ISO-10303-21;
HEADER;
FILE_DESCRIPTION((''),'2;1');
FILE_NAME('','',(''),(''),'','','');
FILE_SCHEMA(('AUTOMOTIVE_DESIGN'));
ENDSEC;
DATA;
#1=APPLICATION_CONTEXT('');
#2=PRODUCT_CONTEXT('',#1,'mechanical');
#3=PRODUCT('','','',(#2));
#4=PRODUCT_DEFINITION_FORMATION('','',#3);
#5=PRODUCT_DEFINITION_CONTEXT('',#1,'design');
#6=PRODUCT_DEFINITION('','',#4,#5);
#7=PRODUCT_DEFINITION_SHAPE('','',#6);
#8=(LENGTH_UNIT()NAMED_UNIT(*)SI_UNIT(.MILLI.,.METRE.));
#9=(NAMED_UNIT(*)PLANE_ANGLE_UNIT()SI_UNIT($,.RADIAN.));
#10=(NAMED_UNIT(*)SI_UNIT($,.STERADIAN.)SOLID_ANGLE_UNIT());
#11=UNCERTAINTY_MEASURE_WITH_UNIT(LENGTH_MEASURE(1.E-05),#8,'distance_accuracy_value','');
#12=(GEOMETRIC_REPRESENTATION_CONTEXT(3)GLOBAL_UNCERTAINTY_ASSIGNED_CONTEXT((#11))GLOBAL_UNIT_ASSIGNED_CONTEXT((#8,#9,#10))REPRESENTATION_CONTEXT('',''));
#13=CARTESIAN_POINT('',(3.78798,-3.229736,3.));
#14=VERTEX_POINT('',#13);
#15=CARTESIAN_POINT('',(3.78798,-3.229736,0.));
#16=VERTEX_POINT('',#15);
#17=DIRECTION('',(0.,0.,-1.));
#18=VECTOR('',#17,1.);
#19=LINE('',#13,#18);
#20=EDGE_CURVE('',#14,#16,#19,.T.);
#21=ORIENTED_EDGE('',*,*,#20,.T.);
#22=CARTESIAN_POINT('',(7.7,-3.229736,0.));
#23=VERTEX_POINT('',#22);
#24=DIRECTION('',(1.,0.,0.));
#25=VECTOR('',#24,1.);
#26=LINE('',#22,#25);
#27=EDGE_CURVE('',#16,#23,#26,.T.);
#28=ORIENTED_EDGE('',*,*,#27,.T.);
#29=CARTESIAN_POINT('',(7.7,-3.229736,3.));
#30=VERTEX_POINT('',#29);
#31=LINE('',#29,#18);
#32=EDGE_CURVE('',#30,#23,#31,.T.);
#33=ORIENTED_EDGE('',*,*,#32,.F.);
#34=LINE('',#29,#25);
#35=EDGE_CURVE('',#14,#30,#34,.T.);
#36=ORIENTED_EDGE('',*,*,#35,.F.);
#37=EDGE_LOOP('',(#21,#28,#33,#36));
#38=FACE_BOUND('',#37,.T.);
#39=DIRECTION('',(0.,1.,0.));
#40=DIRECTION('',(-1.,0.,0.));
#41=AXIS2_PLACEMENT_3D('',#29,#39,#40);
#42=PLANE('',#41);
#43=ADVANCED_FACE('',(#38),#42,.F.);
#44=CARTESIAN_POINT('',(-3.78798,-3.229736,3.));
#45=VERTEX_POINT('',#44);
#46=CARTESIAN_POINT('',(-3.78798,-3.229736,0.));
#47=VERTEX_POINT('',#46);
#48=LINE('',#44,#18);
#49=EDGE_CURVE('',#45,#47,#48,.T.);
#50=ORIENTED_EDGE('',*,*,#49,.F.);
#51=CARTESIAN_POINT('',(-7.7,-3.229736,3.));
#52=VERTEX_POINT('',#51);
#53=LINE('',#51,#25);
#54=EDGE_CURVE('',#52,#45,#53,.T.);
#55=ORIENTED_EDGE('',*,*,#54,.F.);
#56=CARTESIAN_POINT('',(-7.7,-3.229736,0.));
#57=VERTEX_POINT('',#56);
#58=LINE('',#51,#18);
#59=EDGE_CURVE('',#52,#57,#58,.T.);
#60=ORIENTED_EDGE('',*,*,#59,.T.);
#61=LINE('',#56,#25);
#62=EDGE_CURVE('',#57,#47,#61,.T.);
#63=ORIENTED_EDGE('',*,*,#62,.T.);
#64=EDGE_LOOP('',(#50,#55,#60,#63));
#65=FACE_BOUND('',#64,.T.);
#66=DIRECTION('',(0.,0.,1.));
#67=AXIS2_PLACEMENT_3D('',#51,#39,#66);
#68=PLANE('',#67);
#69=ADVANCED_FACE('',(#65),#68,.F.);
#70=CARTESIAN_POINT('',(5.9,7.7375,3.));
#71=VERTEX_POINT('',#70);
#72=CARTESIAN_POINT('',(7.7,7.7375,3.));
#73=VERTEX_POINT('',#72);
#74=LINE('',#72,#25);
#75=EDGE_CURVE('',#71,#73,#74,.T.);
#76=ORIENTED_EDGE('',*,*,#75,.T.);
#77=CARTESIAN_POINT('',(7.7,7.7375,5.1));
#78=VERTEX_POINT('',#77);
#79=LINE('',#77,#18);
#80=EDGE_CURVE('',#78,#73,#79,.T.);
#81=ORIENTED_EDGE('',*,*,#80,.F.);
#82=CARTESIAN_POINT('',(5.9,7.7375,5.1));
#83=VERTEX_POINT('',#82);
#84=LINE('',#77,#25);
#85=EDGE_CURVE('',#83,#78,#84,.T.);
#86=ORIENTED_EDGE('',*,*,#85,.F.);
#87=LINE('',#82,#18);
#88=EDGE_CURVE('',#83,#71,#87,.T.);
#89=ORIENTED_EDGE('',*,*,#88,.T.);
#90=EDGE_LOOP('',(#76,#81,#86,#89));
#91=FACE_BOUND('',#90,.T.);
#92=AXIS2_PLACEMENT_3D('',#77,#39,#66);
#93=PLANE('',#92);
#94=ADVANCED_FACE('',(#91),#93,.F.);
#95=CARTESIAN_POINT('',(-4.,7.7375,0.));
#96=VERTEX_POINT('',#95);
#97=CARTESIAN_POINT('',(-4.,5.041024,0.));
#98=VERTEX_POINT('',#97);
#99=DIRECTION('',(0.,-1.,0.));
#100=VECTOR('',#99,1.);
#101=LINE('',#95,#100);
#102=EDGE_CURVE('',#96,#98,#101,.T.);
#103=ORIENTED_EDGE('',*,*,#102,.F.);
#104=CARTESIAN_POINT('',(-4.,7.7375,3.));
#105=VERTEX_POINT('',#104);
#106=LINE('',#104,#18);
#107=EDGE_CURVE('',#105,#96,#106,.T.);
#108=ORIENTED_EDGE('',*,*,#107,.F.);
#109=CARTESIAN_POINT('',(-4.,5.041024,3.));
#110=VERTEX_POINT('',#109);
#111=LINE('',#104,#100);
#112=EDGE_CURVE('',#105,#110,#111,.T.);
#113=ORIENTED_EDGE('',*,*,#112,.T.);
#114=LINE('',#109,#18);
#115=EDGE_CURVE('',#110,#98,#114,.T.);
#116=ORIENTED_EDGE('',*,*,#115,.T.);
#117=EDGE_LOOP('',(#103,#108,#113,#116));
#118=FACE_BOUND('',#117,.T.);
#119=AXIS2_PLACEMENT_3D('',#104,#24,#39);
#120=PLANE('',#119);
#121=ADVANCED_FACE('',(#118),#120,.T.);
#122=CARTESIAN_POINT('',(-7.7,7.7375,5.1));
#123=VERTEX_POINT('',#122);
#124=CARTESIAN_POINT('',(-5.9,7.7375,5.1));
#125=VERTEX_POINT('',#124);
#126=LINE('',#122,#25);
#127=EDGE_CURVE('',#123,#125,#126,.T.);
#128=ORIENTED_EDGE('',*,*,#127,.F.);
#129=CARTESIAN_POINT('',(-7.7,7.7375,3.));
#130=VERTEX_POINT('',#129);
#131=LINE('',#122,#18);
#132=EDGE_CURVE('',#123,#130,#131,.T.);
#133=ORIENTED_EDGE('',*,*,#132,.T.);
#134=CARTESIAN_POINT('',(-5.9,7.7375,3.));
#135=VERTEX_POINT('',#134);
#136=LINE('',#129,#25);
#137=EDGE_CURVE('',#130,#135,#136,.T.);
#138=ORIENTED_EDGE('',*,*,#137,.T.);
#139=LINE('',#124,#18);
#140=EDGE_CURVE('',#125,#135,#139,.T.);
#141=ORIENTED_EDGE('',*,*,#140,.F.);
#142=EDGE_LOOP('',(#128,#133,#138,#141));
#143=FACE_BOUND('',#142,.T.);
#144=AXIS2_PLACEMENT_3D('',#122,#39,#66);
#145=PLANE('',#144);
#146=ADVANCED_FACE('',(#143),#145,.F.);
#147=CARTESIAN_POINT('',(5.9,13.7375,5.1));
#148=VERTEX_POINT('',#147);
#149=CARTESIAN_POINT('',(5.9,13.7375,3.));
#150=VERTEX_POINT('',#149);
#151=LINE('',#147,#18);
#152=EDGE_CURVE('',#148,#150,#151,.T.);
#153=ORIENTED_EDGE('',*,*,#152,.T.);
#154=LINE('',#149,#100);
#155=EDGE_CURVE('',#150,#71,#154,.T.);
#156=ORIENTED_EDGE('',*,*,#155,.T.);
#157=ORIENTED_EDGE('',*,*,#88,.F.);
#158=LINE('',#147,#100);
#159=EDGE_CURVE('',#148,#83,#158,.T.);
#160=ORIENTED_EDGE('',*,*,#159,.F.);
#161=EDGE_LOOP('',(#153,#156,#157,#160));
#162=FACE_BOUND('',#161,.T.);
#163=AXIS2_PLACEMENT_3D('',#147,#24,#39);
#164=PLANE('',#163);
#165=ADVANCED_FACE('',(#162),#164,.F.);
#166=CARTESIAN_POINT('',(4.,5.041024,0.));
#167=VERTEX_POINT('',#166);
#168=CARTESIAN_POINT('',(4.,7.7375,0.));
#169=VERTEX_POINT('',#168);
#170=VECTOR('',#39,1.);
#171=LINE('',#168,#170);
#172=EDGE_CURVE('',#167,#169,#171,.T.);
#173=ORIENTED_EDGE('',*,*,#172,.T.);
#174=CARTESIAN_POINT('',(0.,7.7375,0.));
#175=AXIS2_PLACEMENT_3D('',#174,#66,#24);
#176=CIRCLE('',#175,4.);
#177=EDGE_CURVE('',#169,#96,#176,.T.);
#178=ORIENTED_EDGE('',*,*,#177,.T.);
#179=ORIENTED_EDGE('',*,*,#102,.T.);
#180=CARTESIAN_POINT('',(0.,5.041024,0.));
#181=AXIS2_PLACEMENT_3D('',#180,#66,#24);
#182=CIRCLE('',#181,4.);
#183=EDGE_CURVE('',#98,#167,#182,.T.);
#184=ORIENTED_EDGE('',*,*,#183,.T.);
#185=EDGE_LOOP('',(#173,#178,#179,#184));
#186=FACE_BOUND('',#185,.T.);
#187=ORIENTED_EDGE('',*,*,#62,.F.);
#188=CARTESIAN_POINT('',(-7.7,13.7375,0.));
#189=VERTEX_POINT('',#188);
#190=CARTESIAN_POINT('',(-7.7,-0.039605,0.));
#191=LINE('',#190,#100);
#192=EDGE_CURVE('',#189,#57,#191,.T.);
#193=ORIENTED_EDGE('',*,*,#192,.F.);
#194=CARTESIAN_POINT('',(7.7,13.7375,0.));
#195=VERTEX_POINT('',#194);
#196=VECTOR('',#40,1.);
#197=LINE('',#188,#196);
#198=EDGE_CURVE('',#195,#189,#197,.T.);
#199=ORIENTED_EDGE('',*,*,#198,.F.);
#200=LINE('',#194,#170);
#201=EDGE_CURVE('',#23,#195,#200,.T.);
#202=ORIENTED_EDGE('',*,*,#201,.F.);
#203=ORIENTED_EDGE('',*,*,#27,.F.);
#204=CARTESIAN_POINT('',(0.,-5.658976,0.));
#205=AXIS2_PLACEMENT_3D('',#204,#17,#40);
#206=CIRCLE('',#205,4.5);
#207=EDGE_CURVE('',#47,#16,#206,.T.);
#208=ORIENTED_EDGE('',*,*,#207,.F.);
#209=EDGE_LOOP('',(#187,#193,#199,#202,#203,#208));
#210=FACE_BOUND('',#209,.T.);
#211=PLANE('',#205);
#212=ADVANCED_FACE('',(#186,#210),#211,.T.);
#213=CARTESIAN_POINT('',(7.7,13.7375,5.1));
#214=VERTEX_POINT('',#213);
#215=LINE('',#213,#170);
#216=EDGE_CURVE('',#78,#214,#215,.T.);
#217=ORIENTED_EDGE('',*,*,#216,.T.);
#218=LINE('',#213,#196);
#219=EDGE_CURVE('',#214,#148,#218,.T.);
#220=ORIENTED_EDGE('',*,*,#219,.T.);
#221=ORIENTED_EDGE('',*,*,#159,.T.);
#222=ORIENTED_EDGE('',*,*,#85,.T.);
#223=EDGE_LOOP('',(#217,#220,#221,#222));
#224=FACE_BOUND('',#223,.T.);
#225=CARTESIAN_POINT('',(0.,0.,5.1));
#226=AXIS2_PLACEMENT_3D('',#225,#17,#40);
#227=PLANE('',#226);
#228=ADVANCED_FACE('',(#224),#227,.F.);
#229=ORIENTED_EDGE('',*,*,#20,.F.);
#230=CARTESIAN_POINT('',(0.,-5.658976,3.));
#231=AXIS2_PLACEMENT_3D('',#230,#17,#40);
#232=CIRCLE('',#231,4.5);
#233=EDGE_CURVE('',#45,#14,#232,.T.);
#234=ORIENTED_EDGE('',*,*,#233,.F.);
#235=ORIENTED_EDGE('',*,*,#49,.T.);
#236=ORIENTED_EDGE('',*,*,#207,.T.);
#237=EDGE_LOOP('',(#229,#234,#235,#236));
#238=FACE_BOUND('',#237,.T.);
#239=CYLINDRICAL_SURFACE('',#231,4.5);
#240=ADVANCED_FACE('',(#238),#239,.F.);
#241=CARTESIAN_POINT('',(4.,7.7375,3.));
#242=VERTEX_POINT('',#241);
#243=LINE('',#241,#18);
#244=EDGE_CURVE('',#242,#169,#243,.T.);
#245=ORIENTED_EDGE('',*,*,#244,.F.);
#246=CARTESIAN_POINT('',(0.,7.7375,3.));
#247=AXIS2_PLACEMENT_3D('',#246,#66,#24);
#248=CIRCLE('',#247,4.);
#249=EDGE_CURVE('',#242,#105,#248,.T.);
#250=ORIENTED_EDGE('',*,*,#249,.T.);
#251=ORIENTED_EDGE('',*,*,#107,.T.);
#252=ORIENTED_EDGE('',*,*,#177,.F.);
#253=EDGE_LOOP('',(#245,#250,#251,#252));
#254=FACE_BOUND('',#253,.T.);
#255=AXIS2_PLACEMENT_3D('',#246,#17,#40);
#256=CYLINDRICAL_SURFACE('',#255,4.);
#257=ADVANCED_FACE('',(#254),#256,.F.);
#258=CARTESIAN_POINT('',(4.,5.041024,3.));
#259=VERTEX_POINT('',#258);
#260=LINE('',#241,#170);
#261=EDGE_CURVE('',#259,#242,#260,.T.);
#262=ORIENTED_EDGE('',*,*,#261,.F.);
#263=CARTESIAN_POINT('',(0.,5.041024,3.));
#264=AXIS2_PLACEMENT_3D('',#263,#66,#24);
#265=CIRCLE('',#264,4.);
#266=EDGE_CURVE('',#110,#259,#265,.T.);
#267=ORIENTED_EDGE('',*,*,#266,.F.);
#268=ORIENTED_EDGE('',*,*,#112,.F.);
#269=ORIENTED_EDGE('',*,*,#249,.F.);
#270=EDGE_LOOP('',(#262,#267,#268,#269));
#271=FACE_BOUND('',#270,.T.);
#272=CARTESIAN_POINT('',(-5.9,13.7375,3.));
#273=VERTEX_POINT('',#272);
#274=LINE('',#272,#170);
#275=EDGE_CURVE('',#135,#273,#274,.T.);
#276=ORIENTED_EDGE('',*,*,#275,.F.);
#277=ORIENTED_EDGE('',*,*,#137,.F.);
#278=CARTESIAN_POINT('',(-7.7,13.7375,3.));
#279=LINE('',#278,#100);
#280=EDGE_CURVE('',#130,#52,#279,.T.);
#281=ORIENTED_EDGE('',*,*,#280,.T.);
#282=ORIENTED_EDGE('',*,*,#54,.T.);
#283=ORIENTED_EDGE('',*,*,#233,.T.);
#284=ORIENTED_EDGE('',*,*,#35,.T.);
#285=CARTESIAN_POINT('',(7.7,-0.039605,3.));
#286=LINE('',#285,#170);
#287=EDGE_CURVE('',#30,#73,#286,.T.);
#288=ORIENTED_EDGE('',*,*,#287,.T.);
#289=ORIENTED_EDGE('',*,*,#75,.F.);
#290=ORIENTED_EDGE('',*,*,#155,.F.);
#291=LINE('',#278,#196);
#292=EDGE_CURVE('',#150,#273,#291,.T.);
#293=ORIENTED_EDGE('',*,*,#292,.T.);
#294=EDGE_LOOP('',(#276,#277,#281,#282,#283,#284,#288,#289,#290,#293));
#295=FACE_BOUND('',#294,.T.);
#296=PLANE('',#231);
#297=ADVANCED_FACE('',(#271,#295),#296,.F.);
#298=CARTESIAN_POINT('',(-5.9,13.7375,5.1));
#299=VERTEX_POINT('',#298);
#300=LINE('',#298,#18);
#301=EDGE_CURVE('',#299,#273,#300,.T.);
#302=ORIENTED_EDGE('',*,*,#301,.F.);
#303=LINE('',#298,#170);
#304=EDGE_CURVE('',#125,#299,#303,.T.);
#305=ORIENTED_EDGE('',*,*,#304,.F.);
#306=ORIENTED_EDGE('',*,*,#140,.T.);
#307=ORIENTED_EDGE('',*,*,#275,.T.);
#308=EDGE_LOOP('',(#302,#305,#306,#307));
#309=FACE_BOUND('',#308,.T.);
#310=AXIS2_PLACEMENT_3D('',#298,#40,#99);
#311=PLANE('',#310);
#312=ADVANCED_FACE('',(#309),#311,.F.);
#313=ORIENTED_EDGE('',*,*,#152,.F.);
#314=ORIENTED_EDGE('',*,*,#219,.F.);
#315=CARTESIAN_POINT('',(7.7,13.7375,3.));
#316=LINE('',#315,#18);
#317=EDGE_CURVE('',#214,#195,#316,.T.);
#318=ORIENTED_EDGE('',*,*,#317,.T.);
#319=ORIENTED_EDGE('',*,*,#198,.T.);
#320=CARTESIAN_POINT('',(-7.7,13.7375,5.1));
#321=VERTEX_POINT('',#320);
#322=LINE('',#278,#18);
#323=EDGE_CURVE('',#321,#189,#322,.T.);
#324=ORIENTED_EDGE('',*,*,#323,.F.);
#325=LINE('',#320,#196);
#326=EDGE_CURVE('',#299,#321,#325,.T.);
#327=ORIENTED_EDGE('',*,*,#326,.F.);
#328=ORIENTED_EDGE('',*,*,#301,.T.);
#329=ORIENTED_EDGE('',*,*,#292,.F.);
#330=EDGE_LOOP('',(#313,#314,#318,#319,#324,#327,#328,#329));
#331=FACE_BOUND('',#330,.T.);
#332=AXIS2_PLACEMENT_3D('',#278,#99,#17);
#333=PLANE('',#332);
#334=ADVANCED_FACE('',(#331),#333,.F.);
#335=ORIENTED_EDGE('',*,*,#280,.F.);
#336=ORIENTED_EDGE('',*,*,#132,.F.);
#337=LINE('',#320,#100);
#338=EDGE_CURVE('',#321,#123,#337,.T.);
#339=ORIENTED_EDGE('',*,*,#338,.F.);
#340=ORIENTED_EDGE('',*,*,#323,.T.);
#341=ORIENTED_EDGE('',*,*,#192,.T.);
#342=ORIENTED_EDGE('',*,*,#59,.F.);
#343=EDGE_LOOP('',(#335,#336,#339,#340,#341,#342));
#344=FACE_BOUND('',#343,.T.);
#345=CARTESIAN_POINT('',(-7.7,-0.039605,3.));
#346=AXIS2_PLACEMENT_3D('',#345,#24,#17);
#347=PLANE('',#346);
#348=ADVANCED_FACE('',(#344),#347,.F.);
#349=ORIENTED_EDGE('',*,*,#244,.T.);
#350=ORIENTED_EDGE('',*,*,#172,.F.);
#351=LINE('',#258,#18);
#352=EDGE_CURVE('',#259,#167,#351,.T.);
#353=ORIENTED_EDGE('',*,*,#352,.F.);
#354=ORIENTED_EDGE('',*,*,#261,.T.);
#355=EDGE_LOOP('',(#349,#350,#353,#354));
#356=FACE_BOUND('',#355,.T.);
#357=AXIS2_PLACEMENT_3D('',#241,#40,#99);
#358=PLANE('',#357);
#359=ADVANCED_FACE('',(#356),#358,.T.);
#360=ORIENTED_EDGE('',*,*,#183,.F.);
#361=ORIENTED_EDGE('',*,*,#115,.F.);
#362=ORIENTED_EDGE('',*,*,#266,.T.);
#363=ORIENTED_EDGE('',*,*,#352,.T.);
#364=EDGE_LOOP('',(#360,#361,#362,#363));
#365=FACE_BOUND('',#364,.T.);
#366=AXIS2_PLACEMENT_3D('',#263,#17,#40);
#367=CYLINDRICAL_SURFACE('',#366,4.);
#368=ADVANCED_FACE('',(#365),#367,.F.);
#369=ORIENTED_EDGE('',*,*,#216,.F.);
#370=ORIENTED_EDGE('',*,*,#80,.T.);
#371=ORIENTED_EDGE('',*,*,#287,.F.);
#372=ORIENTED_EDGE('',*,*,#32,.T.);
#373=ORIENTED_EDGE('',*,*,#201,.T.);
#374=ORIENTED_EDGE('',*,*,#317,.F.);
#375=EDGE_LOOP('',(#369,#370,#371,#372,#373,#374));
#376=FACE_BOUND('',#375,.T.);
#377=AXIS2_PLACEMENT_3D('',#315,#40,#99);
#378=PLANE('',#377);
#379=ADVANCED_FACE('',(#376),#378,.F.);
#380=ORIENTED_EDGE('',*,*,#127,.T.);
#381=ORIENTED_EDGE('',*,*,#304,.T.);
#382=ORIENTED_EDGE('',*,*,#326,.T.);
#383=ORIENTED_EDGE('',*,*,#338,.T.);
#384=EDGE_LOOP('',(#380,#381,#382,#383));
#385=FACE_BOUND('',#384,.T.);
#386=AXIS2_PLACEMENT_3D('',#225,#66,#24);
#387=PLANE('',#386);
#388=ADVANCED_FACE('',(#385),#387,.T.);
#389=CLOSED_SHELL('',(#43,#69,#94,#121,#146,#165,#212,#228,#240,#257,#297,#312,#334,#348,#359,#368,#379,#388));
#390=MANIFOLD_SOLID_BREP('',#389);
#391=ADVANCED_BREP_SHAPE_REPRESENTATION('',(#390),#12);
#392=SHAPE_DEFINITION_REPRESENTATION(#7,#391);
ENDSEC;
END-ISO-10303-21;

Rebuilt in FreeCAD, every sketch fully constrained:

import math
import FreeCAD as App
import Part
import Sketcher

doc = App.newDocument("Part")
params = doc.addObject("Spreadsheet::Sheet", "Params")
for row, (alias, value) in enumerate([
    ("sketch1_radius", "4 mm"),
    ("sketch1_radius2", "4.5 mm"),
    ("sketch1_width", "15.4 mm"),
    ("pad1_length", "3 mm"),
    ("sketch2_height", "6 mm"),
    ("sketch2_width", "1.8 mm"),
    ("pad2_length", "2.1 mm"),
], start=1):
    params.set(f"A{row}", alias)
    params.set(f"B{row}", "=" + value)
    params.setAlias(f"B{row}", alias)

body = doc.addObject("PartDesign::Body", "Body")

sketch1 = doc.addObject("Sketcher::SketchObject", "Sketch")
body.addObject(sketch1)
sketch1.AttachmentSupport = (doc.XY_Plane, [""])
sketch1.MapMode = "FlatFace"
sketch1.addGeometry(Part.LineSegment(App.Vector(7.7, 13.7375, 0), App.Vector(-7.7, 13.7375, 0)), False)
sketch1.addGeometry(Part.LineSegment(App.Vector(-7.7, 13.7375, 0), App.Vector(-7.7, -3.229736, 0)), False)
sketch1.addGeometry(Part.LineSegment(App.Vector(-7.7, -3.229736, 0), App.Vector(-3.78798, -3.229736, 0)), False)
sketch1.addGeometry(Part.ArcOfCircle(Part.Circle(App.Vector(0, -5.658976, 0), App.Vector(0, 0, 1), 4.5), math.radians(32.672153), math.radians(147.327847)), False)
sketch1.addGeometry(Part.LineSegment(App.Vector(3.78798, -3.229736, 0), App.Vector(7.7, -3.229736, 0)), False)
sketch1.addGeometry(Part.LineSegment(App.Vector(7.7, -3.229736, 0), App.Vector(7.7, 13.7375, 0)), False)
sketch1.addGeometry(Part.LineSegment(App.Vector(4, 7.7375, 0), App.Vector(4, 5.041024, 0)), False)
sketch1.addGeometry(Part.ArcOfCircle(Part.Circle(App.Vector(0, 5.041024, 0), App.Vector(0, 0, 1), 4), math.radians(180), math.radians(360)), False)
sketch1.addGeometry(Part.LineSegment(App.Vector(-4, 5.041024, 0), App.Vector(-4, 7.7375, 0)), False)
sketch1.addGeometry(Part.ArcOfCircle(Part.Circle(App.Vector(0, 7.7375, 0), App.Vector(0, 0, 1), 4), math.radians(0), math.radians(180)), False)
sketch1.addConstraint(Sketcher.Constraint("Coincident", 0, 2, 1, 1))
sketch1.addConstraint(Sketcher.Constraint("Coincident", 1, 2, 2, 1))
sketch1.addConstraint(Sketcher.Constraint("Coincident", 2, 2, 3, 2))
sketch1.addConstraint(Sketcher.Constraint("Coincident", 3, 1, 4, 1))
sketch1.addConstraint(Sketcher.Constraint("Coincident", 4, 2, 5, 1))
sketch1.addConstraint(Sketcher.Constraint("Coincident", 5, 2, 0, 1))
sketch1.addConstraint(Sketcher.Constraint("Tangent", 6, 2, 7, 2))
sketch1.addConstraint(Sketcher.Constraint("Tangent", 7, 1, 8, 1))
sketch1.addConstraint(Sketcher.Constraint("Tangent", 8, 2, 9, 2))
sketch1.addConstraint(Sketcher.Constraint("Tangent", 9, 1, 6, 1))
sketch1.addConstraint(Sketcher.Constraint("Horizontal", 0))
sketch1.addConstraint(Sketcher.Constraint("Vertical", 1))
sketch1.addConstraint(Sketcher.Constraint("Horizontal", 2))
sketch1.addConstraint(Sketcher.Constraint("Horizontal", 4))
sketch1.addConstraint(Sketcher.Constraint("Vertical", 5))
sketch1.addConstraint(Sketcher.Constraint("Vertical", 6))
sketch1.addConstraint(Sketcher.Constraint("Vertical", 8))
sketch1.addConstraint(Sketcher.Constraint("Symmetric", 2, 2, 3, 1, -2))
sketch1.addConstraint(Sketcher.Constraint("PointOnObject", 7, 3, -2))
sketch1.addConstraint(Sketcher.Constraint("Equal", 2, 4))
sketch1.addConstraint(Sketcher.Constraint("Radius", 7, 4.0))
sketch1.addConstraint(Sketcher.Constraint("Radius", 3, 4.5))
sketch1.addConstraint(Sketcher.Constraint("DistanceX", 0, 2, 0, 1, 15.4))
sketch1.addConstraint(Sketcher.Constraint("DistanceY", 9, 3, 0, 2, 6.0))
sketch1.addConstraint(Sketcher.Constraint("DistanceY", 3, 3, 7, 3, 10.7))
sketch1.addConstraint(Sketcher.Constraint("DistanceX", 2, 1, 2, 2, 3.91202))
sketch1.addConstraint(Sketcher.Constraint("DistanceY", -1, 1, 9, 3, 7.7375))
sketch1.addConstraint(Sketcher.Constraint("DistanceY", 1, 2, 1, 1, 16.967235))
sketch1.setExpression("Constraints[20]", "Params.sketch1_radius")
sketch1.setExpression("Constraints[21]", "Params.sketch1_radius2")
sketch1.setExpression("Constraints[22]", "Params.sketch1_width")
pad1 = doc.addObject("PartDesign::Pad", "Pad")
body.addObject(pad1)
pad1.Profile = sketch1
pad1.setExpression("Length", "Params.pad1_length")

sketch2 = doc.addObject("Sketcher::SketchObject", "Sketch001")
body.addObject(sketch2)
sketch2.AttachmentSupport = (doc.XY_Plane, [""])
sketch2.MapMode = "FlatFace"
sketch2.AttachmentOffset = App.Placement(App.Vector(0, 0, 3), App.Rotation())
sketch2.addGeometry(Part.LineSegment(App.Vector(-7.7, 13.7375, 0), App.Vector(-7.7, 7.7375, 0)), False)
sketch2.addGeometry(Part.LineSegment(App.Vector(-7.7, 7.7375, 0), App.Vector(-5.9, 7.7375, 0)), False)
sketch2.addGeometry(Part.LineSegment(App.Vector(-5.9, 7.7375, 0), App.Vector(-5.9, 13.7375, 0)), False)
sketch2.addGeometry(Part.LineSegment(App.Vector(-5.9, 13.7375, 0), App.Vector(-7.7, 13.7375, 0)), False)
sketch2.addGeometry(Part.LineSegment(App.Vector(5.9, 13.7375, 0), App.Vector(5.9, 7.7375, 0)), False)
sketch2.addGeometry(Part.LineSegment(App.Vector(5.9, 7.7375, 0), App.Vector(7.7, 7.7375, 0)), False)
sketch2.addGeometry(Part.LineSegment(App.Vector(7.7, 7.7375, 0), App.Vector(7.7, 13.7375, 0)), False)
sketch2.addGeometry(Part.LineSegment(App.Vector(7.7, 13.7375, 0), App.Vector(5.9, 13.7375, 0)), False)
sketch2.addConstraint(Sketcher.Constraint("Coincident", 0, 2, 1, 1))
sketch2.addConstraint(Sketcher.Constraint("Coincident", 1, 2, 2, 1))
sketch2.addConstraint(Sketcher.Constraint("Coincident", 2, 2, 3, 1))
sketch2.addConstraint(Sketcher.Constraint("Coincident", 3, 2, 0, 1))
sketch2.addConstraint(Sketcher.Constraint("Coincident", 4, 2, 5, 1))
sketch2.addConstraint(Sketcher.Constraint("Coincident", 5, 2, 6, 1))
sketch2.addConstraint(Sketcher.Constraint("Coincident", 6, 2, 7, 1))
sketch2.addConstraint(Sketcher.Constraint("Coincident", 7, 2, 4, 1))
sketch2.addConstraint(Sketcher.Constraint("Vertical", 0))
sketch2.addConstraint(Sketcher.Constraint("Horizontal", 1))
sketch2.addConstraint(Sketcher.Constraint("Vertical", 2))
sketch2.addConstraint(Sketcher.Constraint("Horizontal", 3))
sketch2.addConstraint(Sketcher.Constraint("Vertical", 4))
sketch2.addConstraint(Sketcher.Constraint("Horizontal", 5))
sketch2.addConstraint(Sketcher.Constraint("Vertical", 6))
sketch2.addConstraint(Sketcher.Constraint("Horizontal", 7))
sketch2.addConstraint(Sketcher.Constraint("Symmetric", 1, 2, 4, 2, -2))
sketch2.addConstraint(Sketcher.Constraint("Symmetric", 3, 2, 6, 2, -2))
sketch2.addConstraint(Sketcher.Constraint("DistanceY", 0, 2, 0, 1, 6.0))
sketch2.addConstraint(Sketcher.Constraint("DistanceX", 1, 1, 1, 2, 1.8))
sketch2.addConstraint(Sketcher.Constraint("DistanceX", 0, 2, -1, 1, 7.7))
sketch2.addConstraint(Sketcher.Constraint("DistanceY", -1, 1, 0, 2, 7.7375))
sketch2.setExpression("Constraints[18]", "Params.sketch2_height")
sketch2.setExpression("Constraints[19]", "Params.sketch2_width")
pad2 = doc.addObject("PartDesign::Pad", "Pad001")
body.addObject(pad2)
pad2.Profile = sketch2
pad2.setExpression("Length", "Params.pad2_length")

doc.recompute()
